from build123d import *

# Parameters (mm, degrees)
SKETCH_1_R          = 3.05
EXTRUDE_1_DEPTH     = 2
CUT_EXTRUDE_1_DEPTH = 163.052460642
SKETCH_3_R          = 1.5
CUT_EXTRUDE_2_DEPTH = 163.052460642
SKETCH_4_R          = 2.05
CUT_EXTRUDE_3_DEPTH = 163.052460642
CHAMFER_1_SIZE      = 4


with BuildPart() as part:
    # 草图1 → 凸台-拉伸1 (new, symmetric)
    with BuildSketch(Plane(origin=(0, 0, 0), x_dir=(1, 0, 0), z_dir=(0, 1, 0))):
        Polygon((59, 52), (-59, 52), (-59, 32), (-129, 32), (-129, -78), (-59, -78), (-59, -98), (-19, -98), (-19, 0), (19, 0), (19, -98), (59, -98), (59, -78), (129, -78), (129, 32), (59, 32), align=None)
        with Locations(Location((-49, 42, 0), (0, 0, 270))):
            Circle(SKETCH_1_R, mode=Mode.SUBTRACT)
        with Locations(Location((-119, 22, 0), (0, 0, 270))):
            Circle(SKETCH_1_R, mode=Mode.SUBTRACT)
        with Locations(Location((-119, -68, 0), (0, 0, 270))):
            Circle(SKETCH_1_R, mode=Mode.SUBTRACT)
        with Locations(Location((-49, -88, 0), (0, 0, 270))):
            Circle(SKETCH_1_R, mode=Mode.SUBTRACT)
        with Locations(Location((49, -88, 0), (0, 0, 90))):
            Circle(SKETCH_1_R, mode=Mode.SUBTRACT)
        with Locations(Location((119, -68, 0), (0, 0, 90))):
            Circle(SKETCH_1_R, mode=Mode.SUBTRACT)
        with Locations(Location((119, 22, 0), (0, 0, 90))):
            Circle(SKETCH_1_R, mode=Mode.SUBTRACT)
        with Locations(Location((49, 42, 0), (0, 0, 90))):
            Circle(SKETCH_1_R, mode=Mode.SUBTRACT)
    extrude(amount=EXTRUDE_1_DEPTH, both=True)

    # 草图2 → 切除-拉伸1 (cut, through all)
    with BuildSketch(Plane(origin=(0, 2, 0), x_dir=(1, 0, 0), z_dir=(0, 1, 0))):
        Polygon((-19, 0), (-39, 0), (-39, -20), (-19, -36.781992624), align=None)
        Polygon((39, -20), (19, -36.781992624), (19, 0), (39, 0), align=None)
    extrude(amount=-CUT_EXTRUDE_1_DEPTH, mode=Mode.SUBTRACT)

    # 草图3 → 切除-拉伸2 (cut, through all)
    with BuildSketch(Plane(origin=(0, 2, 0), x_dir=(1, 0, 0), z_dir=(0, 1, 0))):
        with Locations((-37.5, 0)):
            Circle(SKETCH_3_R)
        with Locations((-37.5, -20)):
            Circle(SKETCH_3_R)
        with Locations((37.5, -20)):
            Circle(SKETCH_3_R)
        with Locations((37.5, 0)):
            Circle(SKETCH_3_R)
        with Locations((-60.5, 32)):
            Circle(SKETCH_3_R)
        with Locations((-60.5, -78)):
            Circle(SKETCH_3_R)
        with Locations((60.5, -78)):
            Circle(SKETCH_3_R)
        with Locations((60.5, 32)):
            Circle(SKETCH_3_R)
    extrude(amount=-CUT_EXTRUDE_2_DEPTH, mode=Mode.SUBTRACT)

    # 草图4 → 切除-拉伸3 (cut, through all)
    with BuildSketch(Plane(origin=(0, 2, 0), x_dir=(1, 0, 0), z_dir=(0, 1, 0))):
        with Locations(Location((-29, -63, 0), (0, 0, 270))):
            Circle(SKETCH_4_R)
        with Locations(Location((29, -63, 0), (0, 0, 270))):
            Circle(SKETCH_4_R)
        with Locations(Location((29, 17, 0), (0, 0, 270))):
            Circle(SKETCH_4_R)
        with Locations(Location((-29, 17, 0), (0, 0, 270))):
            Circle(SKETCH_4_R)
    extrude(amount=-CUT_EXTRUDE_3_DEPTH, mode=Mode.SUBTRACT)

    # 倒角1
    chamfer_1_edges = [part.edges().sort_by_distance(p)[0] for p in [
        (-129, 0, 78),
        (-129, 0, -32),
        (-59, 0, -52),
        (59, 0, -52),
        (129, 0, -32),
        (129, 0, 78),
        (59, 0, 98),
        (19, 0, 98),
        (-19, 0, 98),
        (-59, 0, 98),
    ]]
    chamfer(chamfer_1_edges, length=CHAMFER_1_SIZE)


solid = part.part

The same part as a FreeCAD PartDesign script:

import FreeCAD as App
import Part
import Sketcher
from FreeCAD import Vector
Q = App.Units.Quantity


def edges_at(feature, points):
    """Names of the edges that pass closest to the given points."""
    edges = feature.Shape.Edges
    near = lambda p: min(range(len(edges)), key=lambda i: edges[i].distToShape(Part.Vertex(*p))[0])
    return sorted({f"Edge{near(p) + 1}" for p in points})


def add_polygon(sketch, points):
    """Adds a closed chain of lines whose ends are joined by coincident constraints."""
    first, n = sketch.GeometryCount, len(points)
    for a, b in zip(points, points[1:] + points[:1]):
        sketch.addGeometry(Part.LineSegment(App.Vector(*a, 0), App.Vector(*b, 0)), False)
    for i in range(n):
        sketch.addConstraint(Sketcher.Constraint("Coincident", first + i, 2, first + (i + 1) % n, 1))

doc = App.newDocument("Part")
params = doc.addObject("Spreadsheet::Sheet", "Params")
for row, (alias, value) in enumerate([
    ("sketch1_diameter", "6.1 mm"),
    ("sketch1_width", "118 mm"),
    ("sketch1_width2", "70 mm"),
    ("sketch1_width3", "40 mm"),
    ("sketch1_height", "20 mm"),
    ("pad1_length", "4 mm"),
    ("sketch2_width", "20 mm"),
    ("sketch3_diameter", "3 mm"),
    ("sketch4_diameter", "4.1 mm"),
    ("chamfer_size", "4 mm"),
], start=1):
    params.set(f"A{row}", alias)
    params.set(f"B{row}", "=" + value)
    params.setAlias(f"B{row}", alias)

body = doc.addObject("PartDesign::Body", "Body")

# Sketch on XZ plane
sketch1 = body.newObject("Sketcher::SketchObject", "Sketch")
sketch1.AttachmentSupport = (doc.getObject("XZ_Plane"), [""])
sketch1.MapMode = "FlatFace"
add_polygon(sketch1, [(59, -52), (-59, -52), (-59, -32), (-129, -32), (-129, 78), (-59, 78), (-59, 98), (-19, 98), (-19, 0), (19, 0), (19, 98), (59, 98), (59, 78), (129, 78), (129, -32), (59, -32)])  # lines 0-15
sketch1.addGeometry(Part.Circle(Vector(-119, 68, 0), Vector(0, 0, 1), 3.05), False)  # 16
sketch1.addGeometry(Part.Circle(Vector(-49, 88, 0), Vector(0, 0, 1), 3.05), False)  # 17
sketch1.addGeometry(Part.Circle(Vector(49, 88, 0), Vector(0, 0, 1), 3.05), False)  # 18
sketch1.addGeometry(Part.Circle(Vector(119, 68, 0), Vector(0, 0, 1), 3.05), False)  # 19
sketch1.addGeometry(Part.Circle(Vector(-119, -22, 0), Vector(0, 0, 1), 3.05), False)  # 20
sketch1.addGeometry(Part.Circle(Vector(-49, -42, 0), Vector(0, 0, 1), 3.05), False)  # 21
sketch1.addGeometry(Part.Circle(Vector(49, -42, 0), Vector(0, 0, 1), 3.05), False)  # 22
sketch1.addGeometry(Part.Circle(Vector(119, -22, 0), Vector(0, 0, 1), 3.05), False)  # 23
sketch1.addConstraint(Sketcher.Constraint("Horizontal", 0))
sketch1.addConstraint(Sketcher.Constraint("Vertical", 1))
sketch1.addConstraint(Sketcher.Constraint("Horizontal", 2))
sketch1.addConstraint(Sketcher.Constraint("Vertical", 3))
sketch1.addConstraint(Sketcher.Constraint("Horizontal", 4))
sketch1.addConstraint(Sketcher.Constraint("Vertical", 5))
sketch1.addConstraint(Sketcher.Constraint("Horizontal", 6))
sketch1.addConstraint(Sketcher.Constraint("Vertical", 7))
sketch1.addConstraint(Sketcher.Constraint("Horizontal", 8))
sketch1.addConstraint(Sketcher.Constraint("Vertical", 9))
sketch1.addConstraint(Sketcher.Constraint("Horizontal", 10))
sketch1.addConstraint(Sketcher.Constraint("Vertical", 11))
sketch1.addConstraint(Sketcher.Constraint("Horizontal", 12))
sketch1.addConstraint(Sketcher.Constraint("Vertical", 13))
sketch1.addConstraint(Sketcher.Constraint("Horizontal", 14))
sketch1.addConstraint(Sketcher.Constraint("Vertical", 15))
sketch1.addConstraint(Sketcher.Constraint("Equal", 16, 17))
sketch1.addConstraint(Sketcher.Constraint("Equal", 17, 18))
sketch1.addConstraint(Sketcher.Constraint("Equal", 18, 19))
sketch1.addConstraint(Sketcher.Constraint("Equal", 19, 20))
sketch1.addConstraint(Sketcher.Constraint("Equal", 20, 21))
sketch1.addConstraint(Sketcher.Constraint("Equal", 21, 22))
sketch1.addConstraint(Sketcher.Constraint("Equal", 22, 23))
sketch1.addConstraint(Sketcher.Constraint("Symmetric", 7, 2, 8, 2, -1, 1))
sketch1.addConstraint(Sketcher.Constraint("Symmetric", 17, 3, 18, 3, -2))
sketch1.addConstraint(Sketcher.Constraint("Symmetric", 16, 3, 19, 3, -2))
sketch1.addConstraint(Sketcher.Constraint("Symmetric", 21, 3, 22, 3, -2))
sketch1.addConstraint(Sketcher.Constraint("Symmetric", 20, 3, 23, 3, -2))
sketch1.addConstraint(Sketcher.Constraint("Symmetric", 5, 2, 10, 2, -2))
sketch1.addConstraint(Sketcher.Constraint("Symmetric", 3, 2, 12, 2, -2))
sketch1.addConstraint(Sketcher.Constraint("Symmetric", 1, 2, 14, 2, -2))
sketch1.addConstraint(Sketcher.Constraint("Vertical", 16, 3, 20, 3))
sketch1.addConstraint(Sketcher.Constraint("Vertical", 17, 3, 21, 3))
sketch1.addConstraint(Sketcher.Constraint("Vertical", 1, 2, 4, 2))
sketch1.addConstraint(Sketcher.Constraint("Equal", 1, 5))
sketch1.addConstraint(Sketcher.Constraint("Diameter", 16, 6.1))
sketch1.addConstraint(Sketcher.Constraint("DistanceX", 0, 2, 0, 1, 118.0))
sketch1.addConstraint(Sketcher.Constraint("DistanceX", 2, 2, 2, 1, 70.0))
sketch1.addConstraint(Sketcher.Constraint("DistanceX", 6, 1, 6, 2, 40.0))
sketch1.addConstraint(Sketcher.Constraint("DistanceY", 1, 1, 1, 2, 20.0))
sketch1.addConstraint(Sketcher.Constraint("DistanceY", 3, 1, 3, 2, 110.0))
sketch1.addConstraint(Sketcher.Constraint("DistanceY", 7, 2, 7, 1, 98.0))
sketch1.addConstraint(Sketcher.Constraint("DistanceX", 16, 3, -1, 1, 119.0))
sketch1.addConstraint(Sketcher.Constraint("DistanceY", -1, 1, 16, 3, 68.0))
sketch1.addConstraint(Sketcher.Constraint("DistanceX", 17, 3, -1, 1, 49.0))
sketch1.addConstraint(Sketcher.Constraint("DistanceY", -1, 1, 17, 3, 88.0))
sketch1.addConstraint(Sketcher.Constraint("DistanceY", 20, 3, -1, 1, 22.0))
sketch1.addConstraint(Sketcher.Constraint("DistanceY", 21, 3, -1, 1, 42.0))
sketch1.setExpression("Constraints[51]", "Params.sketch1_diameter")
sketch1.setExpression("Constraints[52]", "Params.sketch1_width")
sketch1.setExpression("Constraints[53]", "Params.sketch1_width2")
sketch1.setExpression("Constraints[54]", "Params.sketch1_width3")
sketch1.setExpression("Constraints[55]", "Params.sketch1_height")
pad1 = body.newObject("PartDesign::Pad", "Pad")
pad1.Profile = sketch1
pad1.setExpression("Length", "Params.pad1_length")
pad1.Midplane = True

# Sketch on XZ plane
sketch2 = body.newObject("Sketcher::SketchObject", "Sketch001")
sketch2.AttachmentSupport = (doc.getObject("XZ_Plane"), [""])
sketch2.MapMode = "FlatFace"
sketch2.AttachmentOffset = App.Placement(Vector(0, 0, -2), App.Rotation())
add_polygon(sketch2, [(-19, 0), (-39, 0), (-39, 20), (-19, 36.781993)])  # lines 0-3
add_polygon(sketch2, [(19, 36.781993), (39, 20), (39, 0), (19, 0)])  # lines 4-7
sketch2.addConstraint(Sketcher.Constraint("Horizontal", 0))
sketch2.addConstraint(Sketcher.Constraint("Vertical", 1))
sketch2.addConstraint(Sketcher.Constraint("Vertical", 3))
sketch2.addConstraint(Sketcher.Constraint("Vertical", 5))
sketch2.addConstraint(Sketcher.Constraint("Horizontal", 6))
sketch2.addConstraint(Sketcher.Constraint("Vertical", 7))
sketch2.addConstraint(Sketcher.Constraint("Symmetric", 0, 2, 5, 2, -1, 1))
sketch2.addConstraint(Sketcher.Constraint("Symmetric", 3, 2, 6, 2, -2))
sketch2.addConstraint(Sketcher.Constraint("Horizontal", 1, 2, 4, 2))
sketch2.addConstraint(Sketcher.Constraint("Horizontal", 2, 2, 7, 2))
sketch2.addConstraint(Sketcher.Constraint("Equal", 6, 1))
sketch2.addConstraint(Sketcher.Constraint("DistanceX", 0, 2, 0, 1, 20.0))
sketch2.addConstraint(Sketcher.Constraint("Angle", 2, Q("40 deg")))
sketch2.addConstraint(Sketcher.Constraint("DistanceX", 0, 2, -1, 1, 39.0))
sketch2.setExpression("Constraints[19]", "Params.sketch2_width")
pocket1 = body.newObject("PartDesign::Pocket", "Pocket")
pocket1.Profile = sketch2
pocket1.Type = "ThroughAll"
pocket1.Reversed = True

# Sketch on XZ plane
sketch3 = body.newObject("Sketcher::SketchObject", "Sketch002")
sketch3.AttachmentSupport = (doc.getObject("XZ_Plane"), [""])
sketch3.MapMode = "FlatFace"
sketch3.AttachmentOffset = App.Placement(Vector(0, 0, -2), App.Rotation())
sketch3.addGeometry(Part.Circle(Vector(-37.5, 0, 0), Vector(0, 0, 1), 1.5), False)
sketch3.addGeometry(Part.Circle(Vector(-37.5, 20, 0), Vector(0, 0, 1), 1.5), False)
sketch3.addGeometry(Part.Circle(Vector(37.5, 20, 0), Vector(0, 0, 1), 1.5), False)
sketch3.addGeometry(Part.Circle(Vector(37.5, 0, 0), Vector(0, 0, 1), 1.5), False)
sketch3.addGeometry(Part.Circle(Vector(-60.5, -32, 0), Vector(0, 0, 1), 1.5), False)
sketch3.addGeometry(Part.Circle(Vector(-60.5, 78, 0), Vector(0, 0, 1), 1.5), False)
sketch3.addGeometry(Part.Circle(Vector(60.5, 78, 0), Vector(0, 0, 1), 1.5), False)
sketch3.addGeometry(Part.Circle(Vector(60.5, -32, 0), Vector(0, 0, 1), 1.5), False)
sketch3.addConstraint(Sketcher.Constraint("Equal", 0, 1))
sketch3.addConstraint(Sketcher.Constraint("Equal", 1, 2))
sketch3.addConstraint(Sketcher.Constraint("Equal", 2, 3))
sketch3.addConstraint(Sketcher.Constraint("Equal", 3, 4))
sketch3.addConstraint(Sketcher.Constraint("Equal", 4, 5))
sketch3.addConstraint(Sketcher.Constraint("Equal", 5, 6))
sketch3.addConstraint(Sketcher.Constraint("Equal", 6, 7))
sketch3.addConstraint(Sketcher.Constraint("Symmetric", 0, 3, 3, 3, -1, 1))
sketch3.addConstraint(Sketcher.Constraint("Symmetric", 1, 3, 2, 3, -2))
sketch3.addConstraint(Sketcher.Constraint("Symmetric", 5, 3, 6, 3, -2))
sketch3.addConstraint(Sketcher.Constraint("Symmetric", 4, 3, 7, 3, -2))
sketch3.addConstraint(Sketcher.Constraint("PointOnObject", 0, 3, -1))
sketch3.addConstraint(Sketcher.Constraint("Vertical", 0, 3, 1, 3))
sketch3.addConstraint(Sketcher.Constraint("Vertical", 4, 3, 5, 3))
sketch3.addConstraint(Sketcher.Constraint("Diameter", 0, 3.0))
sketch3.addConstraint(Sketcher.Constraint("DistanceY", -1, 1, 1, 3, 20.0))
sketch3.addConstraint(Sketcher.Constraint("DistanceY", 4, 3, -1, 1, 32.0))
sketch3.addConstraint(Sketcher.Constraint("DistanceY", -1, 1, 5, 3, 78.0))
sketch3.addConstraint(Sketcher.Constraint("DistanceX", 1, 3, 2, 3, 75.0))
sketch3.addConstraint(Sketcher.Constraint("DistanceX", 4, 3, 0, 3, 23.0))
sketch3.setExpression("Constraints[14]", "Params.sketch3_diameter")
pocket2 = body.newObject("PartDesign::Pocket", "Pocket001")
pocket2.Profile = sketch3
pocket2.Type = "ThroughAll"
pocket2.Reversed = True

# Sketch on XZ plane
sketch4 = body.newObject("Sketcher::SketchObject", "Sketch003")
sketch4.AttachmentSupport = (doc.getObject("XZ_Plane"), [""])
sketch4.MapMode = "FlatFace"
sketch4.AttachmentOffset = App.Placement(Vector(0, 0, -2), App.Rotation())
sketch4.addGeometry(Part.Circle(Vector(-29, 63, 0), Vector(0, 0, 1), 2.05), False)
sketch4.addGeometry(Part.Circle(Vector(29, 63, 0), Vector(0, 0, 1), 2.05), False)
sketch4.addGeometry(Part.Circle(Vector(29, -17, 0), Vector(0, 0, 1), 2.05), False)
sketch4.addGeometry(Part.Circle(Vector(-29, -17, 0), Vector(0, 0, 1), 2.05), False)
sketch4.addConstraint(Sketcher.Constraint("Equal", 0, 1))
sketch4.addConstraint(Sketcher.Constraint("Equal", 1, 2))
sketch4.addConstraint(Sketcher.Constraint("Equal", 2, 3))
sketch4.addConstraint(Sketcher.Constraint("Symmetric", 0, 3, 1, 3, -2))
sketch4.addConstraint(Sketcher.Constraint("Symmetric", 2, 3, 3, 3, -2))
sketch4.addConstraint(Sketcher.Constraint("Vertical", 1, 3, 2, 3))
sketch4.addConstraint(Sketcher.Constraint("Diameter", 0, 4.1))
sketch4.addConstraint(Sketcher.Constraint("DistanceX", 0, 3, -1, 1, 29.0))
sketch4.addConstraint(Sketcher.Constraint("DistanceY", -1, 1, 0, 3, 63.0))
sketch4.addConstraint(Sketcher.Constraint("DistanceY", 2, 3, -1, 1, 17.0))
sketch4.setExpression("Constraints[6]", "Params.sketch4_diameter")
pocket3 = body.newObject("PartDesign::Pocket", "Pocket002")
pocket3.Profile = sketch4
pocket3.Type = "ThroughAll"
pocket3.Reversed = True
doc.recompute()

chamfer = body.newObject("PartDesign::Chamfer", "Chamfer")
chamfer.Base = (pocket3, edges_at(pocket3, [
    (-129, 0, 78),
    (-129, 0, -32),
    (-59, 0, -52),
    (59, 0, -52),
    (129, 0, -32),
    (129, 0, 78),
    (59, 0, 98),
    (19, 0, 98),
    (-19, 0, 98),
    (-59, 0, 98),
]))
chamfer.setExpression("Size", "Params.chamfer_size")

doc.recompute()
